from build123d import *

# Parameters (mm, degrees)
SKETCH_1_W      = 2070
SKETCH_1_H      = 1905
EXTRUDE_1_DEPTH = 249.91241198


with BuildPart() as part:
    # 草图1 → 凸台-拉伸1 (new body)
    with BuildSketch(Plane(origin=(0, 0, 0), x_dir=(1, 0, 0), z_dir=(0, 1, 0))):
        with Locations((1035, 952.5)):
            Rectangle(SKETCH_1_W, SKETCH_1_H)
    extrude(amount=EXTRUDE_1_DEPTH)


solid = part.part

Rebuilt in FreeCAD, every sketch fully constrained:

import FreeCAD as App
import Part
import Sketcher

V = App.Vector

doc = App.newDocument("Part")
body = doc.addObject("PartDesign::Body", "Body")

sketch1 = doc.addObject("Sketcher::SketchObject", "Sketch")
body.addObject(sketch1)
sketch1.AttachmentSupport = (doc.XZ_Plane, [""])
sketch1.MapMode = "FlatFace"
sketch1.addGeometry(Part.LineSegment(V(0, -1905, 0), V(0, 0, 0)), False)
sketch1.addGeometry(Part.LineSegment(V(0, 0, 0), V(2070, 0, 0)), False)
sketch1.addGeometry(Part.LineSegment(V(2070, 0, 0), V(2070, -1905, 0)), False)
sketch1.addGeometry(Part.LineSegment(V(2070, -1905, 0), V(0, -1905, 0)), False)
sketch1.addConstraint(Sketcher.Constraint("Coincident", 0, 2, 1, 1))
sketch1.addConstraint(Sketcher.Constraint("Coincident", 1, 2, 2, 1))
sketch1.addConstraint(Sketcher.Constraint("Coincident", 2, 2, 3, 1))
sketch1.addConstraint(Sketcher.Constraint("Coincident", 3, 2, 0, 1))
sketch1.addConstraint(Sketcher.Constraint("Vertical", 0))
sketch1.addConstraint(Sketcher.Constraint("Horizontal", 1))
sketch1.addConstraint(Sketcher.Constraint("Vertical", 2))
sketch1.addConstraint(Sketcher.Constraint("Horizontal", 3))
sketch1.addConstraint(Sketcher.Constraint("Coincident", 0, 2, -1, 1))
sketch1.addConstraint(Sketcher.Constraint("DistanceX", 1, 1, 1, 2, 2070.0))
sketch1.addConstraint(Sketcher.Constraint("DistanceY", 0, 1, 0, 2, 1905.0))
pad1 = doc.addObject("PartDesign::Pad", "Pad")
body.addObject(pad1)
pad1.Profile = sketch1
pad1.Length = 249.912412
pad1.Reversed = True

doc.recompute()
